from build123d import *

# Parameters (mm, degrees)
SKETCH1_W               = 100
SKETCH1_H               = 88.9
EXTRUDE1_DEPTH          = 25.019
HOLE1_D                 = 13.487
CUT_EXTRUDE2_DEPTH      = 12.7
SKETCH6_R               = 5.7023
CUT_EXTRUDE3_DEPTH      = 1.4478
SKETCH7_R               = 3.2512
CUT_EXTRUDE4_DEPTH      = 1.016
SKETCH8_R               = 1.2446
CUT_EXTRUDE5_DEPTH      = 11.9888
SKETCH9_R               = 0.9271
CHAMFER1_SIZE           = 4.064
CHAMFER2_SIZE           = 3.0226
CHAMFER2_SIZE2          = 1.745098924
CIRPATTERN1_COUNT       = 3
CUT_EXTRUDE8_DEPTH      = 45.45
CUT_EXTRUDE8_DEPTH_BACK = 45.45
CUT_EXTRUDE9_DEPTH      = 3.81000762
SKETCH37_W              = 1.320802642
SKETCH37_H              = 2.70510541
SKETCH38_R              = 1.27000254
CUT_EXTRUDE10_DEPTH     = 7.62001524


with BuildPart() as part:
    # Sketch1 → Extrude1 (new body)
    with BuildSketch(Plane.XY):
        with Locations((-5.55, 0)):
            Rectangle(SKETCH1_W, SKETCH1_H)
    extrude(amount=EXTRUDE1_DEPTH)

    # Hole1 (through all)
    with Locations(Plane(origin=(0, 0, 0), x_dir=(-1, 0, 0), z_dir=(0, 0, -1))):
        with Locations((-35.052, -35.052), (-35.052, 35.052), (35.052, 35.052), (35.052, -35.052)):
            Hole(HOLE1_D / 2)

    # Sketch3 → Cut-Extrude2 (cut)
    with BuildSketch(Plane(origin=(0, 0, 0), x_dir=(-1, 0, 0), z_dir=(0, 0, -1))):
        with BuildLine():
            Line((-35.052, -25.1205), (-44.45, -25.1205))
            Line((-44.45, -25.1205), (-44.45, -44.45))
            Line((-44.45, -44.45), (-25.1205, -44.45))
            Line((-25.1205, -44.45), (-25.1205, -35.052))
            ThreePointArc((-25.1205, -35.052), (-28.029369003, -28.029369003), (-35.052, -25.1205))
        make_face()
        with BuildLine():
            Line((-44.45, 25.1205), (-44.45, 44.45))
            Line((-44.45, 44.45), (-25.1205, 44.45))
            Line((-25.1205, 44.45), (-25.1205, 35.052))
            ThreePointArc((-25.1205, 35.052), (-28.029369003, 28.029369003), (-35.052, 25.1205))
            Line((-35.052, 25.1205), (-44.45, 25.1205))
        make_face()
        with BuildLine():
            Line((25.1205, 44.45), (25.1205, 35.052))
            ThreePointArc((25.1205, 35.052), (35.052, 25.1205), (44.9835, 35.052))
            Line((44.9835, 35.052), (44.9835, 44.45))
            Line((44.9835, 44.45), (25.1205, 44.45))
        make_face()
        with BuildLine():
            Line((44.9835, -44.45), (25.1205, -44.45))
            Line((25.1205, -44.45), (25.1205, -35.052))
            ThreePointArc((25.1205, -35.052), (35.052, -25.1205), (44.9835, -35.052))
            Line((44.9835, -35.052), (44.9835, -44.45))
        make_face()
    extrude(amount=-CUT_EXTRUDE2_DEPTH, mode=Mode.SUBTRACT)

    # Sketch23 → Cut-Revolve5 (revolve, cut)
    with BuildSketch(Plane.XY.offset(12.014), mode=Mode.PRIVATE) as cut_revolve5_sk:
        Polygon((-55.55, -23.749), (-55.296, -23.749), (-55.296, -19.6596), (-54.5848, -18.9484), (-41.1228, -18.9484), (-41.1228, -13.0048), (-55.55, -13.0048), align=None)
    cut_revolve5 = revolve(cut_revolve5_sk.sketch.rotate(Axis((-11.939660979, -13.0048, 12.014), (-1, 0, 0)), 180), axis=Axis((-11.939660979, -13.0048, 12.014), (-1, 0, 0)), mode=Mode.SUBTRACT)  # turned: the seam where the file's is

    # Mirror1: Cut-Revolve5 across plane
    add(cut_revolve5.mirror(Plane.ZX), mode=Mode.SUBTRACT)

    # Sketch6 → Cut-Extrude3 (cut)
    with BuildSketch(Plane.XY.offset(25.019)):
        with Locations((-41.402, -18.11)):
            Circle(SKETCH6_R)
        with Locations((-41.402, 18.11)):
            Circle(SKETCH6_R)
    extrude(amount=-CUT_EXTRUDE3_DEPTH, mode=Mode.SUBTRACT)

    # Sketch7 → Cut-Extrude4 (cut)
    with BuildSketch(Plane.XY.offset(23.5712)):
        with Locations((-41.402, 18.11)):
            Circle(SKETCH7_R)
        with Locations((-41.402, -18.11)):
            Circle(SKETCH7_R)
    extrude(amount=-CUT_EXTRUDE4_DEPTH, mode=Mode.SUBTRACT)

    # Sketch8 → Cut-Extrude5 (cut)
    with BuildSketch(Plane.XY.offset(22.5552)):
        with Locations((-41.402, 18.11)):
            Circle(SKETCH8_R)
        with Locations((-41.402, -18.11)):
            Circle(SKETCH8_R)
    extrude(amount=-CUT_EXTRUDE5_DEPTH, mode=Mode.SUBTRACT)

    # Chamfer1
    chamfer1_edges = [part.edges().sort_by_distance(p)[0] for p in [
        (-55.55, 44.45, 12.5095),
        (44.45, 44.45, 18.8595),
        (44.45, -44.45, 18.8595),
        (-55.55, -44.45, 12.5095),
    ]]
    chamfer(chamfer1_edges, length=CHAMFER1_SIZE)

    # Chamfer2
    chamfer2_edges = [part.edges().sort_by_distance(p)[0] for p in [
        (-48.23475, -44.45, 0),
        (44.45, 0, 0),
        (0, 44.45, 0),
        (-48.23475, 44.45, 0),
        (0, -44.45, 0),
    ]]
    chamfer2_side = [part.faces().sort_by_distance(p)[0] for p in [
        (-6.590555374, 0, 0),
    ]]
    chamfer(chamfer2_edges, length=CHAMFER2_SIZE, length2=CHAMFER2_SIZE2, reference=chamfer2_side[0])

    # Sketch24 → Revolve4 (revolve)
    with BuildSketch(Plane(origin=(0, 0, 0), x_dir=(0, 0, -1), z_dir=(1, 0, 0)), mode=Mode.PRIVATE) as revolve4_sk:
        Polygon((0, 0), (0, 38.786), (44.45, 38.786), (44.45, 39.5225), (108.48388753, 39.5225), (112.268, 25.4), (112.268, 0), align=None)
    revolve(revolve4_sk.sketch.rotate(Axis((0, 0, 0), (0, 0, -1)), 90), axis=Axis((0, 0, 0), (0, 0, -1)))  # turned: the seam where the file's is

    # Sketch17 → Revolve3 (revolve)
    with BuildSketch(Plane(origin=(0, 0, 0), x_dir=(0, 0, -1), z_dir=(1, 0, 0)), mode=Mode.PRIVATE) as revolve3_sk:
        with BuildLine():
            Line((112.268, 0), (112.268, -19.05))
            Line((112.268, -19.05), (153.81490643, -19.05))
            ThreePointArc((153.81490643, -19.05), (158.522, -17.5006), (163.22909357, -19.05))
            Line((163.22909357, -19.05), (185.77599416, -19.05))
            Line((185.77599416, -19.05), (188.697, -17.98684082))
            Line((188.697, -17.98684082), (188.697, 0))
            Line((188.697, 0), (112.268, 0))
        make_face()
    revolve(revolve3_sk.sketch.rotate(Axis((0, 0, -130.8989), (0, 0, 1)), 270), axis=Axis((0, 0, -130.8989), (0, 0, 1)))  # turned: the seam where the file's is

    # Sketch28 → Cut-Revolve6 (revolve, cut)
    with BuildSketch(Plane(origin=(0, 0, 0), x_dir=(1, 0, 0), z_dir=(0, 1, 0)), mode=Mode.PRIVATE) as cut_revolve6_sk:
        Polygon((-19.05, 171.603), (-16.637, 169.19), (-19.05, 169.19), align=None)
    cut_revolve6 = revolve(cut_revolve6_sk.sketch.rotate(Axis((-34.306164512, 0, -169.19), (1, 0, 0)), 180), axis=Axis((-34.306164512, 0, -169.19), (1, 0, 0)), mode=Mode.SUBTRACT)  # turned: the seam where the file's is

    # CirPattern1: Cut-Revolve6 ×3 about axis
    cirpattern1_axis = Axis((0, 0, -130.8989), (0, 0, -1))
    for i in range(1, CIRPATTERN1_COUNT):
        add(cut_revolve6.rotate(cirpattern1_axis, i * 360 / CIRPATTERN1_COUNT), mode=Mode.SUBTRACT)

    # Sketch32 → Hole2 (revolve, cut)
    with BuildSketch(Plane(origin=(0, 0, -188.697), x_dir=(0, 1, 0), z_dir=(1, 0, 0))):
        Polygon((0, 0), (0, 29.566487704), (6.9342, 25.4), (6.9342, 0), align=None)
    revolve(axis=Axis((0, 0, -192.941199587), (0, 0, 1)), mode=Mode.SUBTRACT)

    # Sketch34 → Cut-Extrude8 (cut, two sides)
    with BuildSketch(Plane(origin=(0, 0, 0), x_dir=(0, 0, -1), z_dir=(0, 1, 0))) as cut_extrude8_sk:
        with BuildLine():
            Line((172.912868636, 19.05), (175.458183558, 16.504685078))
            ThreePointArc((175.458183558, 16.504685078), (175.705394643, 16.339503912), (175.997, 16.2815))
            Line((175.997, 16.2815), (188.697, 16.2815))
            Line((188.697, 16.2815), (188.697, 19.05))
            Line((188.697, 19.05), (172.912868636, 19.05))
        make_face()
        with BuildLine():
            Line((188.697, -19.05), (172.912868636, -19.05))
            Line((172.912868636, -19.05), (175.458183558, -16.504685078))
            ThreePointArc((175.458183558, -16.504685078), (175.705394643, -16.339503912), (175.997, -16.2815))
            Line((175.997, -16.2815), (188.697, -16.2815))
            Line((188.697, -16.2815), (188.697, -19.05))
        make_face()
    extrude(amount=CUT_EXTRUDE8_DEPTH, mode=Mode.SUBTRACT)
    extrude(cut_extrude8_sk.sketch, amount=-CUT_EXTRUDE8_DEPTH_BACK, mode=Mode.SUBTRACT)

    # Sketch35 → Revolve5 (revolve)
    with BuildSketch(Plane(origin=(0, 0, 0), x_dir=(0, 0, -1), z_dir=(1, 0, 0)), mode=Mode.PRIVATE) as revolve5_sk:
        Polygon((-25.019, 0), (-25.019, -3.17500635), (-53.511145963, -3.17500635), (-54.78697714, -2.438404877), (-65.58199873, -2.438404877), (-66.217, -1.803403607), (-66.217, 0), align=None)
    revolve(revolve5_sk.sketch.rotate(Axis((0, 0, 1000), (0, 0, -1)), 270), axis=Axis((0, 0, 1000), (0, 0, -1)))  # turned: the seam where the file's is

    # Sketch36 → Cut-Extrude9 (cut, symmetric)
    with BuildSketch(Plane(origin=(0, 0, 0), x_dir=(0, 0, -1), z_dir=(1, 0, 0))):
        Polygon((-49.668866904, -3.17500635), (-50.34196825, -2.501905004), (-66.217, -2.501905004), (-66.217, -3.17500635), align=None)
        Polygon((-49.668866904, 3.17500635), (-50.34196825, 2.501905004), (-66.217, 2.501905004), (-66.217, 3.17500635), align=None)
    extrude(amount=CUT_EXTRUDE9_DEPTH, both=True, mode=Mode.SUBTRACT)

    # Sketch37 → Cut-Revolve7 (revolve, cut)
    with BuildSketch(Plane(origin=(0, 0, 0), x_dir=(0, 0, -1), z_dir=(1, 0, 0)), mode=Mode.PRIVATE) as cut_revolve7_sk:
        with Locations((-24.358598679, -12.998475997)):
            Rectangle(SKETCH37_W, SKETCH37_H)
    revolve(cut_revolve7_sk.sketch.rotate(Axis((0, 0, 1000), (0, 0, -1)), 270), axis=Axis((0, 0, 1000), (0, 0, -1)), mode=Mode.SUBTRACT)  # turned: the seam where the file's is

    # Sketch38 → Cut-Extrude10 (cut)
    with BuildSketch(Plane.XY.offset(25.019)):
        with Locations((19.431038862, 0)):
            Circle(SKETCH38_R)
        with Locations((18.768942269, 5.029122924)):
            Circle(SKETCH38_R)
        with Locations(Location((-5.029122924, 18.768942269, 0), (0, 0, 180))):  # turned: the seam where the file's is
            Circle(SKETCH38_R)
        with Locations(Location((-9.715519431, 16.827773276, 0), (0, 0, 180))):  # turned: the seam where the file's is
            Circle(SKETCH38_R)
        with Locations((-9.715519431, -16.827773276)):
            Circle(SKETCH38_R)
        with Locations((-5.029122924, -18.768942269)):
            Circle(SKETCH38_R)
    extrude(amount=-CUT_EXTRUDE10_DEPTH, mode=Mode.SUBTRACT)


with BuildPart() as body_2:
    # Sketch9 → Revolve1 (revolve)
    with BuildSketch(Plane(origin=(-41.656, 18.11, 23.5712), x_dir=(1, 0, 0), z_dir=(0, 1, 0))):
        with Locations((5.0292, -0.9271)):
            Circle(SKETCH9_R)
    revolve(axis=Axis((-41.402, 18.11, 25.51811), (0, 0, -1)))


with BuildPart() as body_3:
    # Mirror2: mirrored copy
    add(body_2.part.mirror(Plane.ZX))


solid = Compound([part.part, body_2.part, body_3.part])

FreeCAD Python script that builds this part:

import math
import FreeCAD as App
import Part
import Sketcher

V = App.Vector
Q = App.Units.Quantity


def edges_at(feature, points):
    """Names of the edges that pass closest to the given points."""
    edges = feature.Shape.Edges
    near = lambda p: min(range(len(edges)), key=lambda i: edges[i].distToShape(Part.Vertex(*p))[0])
    return sorted({f"Edge{near(p) + 1}" for p in points})

doc = App.newDocument("Part")
params = doc.addObject("Spreadsheet::Sheet", "Params")
for row, (alias, value) in enumerate([
    ("sketch1_height", "3.5 in"),
    ("pad1_length", "0.985 in"),
    ("hole_diameter", "13.487 mm"),
    ("sketch3_width", "0.37 in"),
    ("pocket1_length", "0.5 in"),
    ("sketch4_width", "0.01 in"),
    ("sketch4_width2", "0.53 in"),
    ("sketch4_width3", "0.568 in"),
    ("sketch4_height", "0.161 in"),
    ("sketch4_height2", "0.234 in"),
    ("groove_angle", "360 deg"),
    ("sketch5_diameter", "0.449 in"),
    ("pocket2_length", "0.057 in"),
    ("sketch6_diameter", "0.256 in"),
    ("pocket3_length", "0.04 in"),
    ("sketch7_diameter", "0.098 in"),
    ("pocket4_length", "0.472 in"),
    ("chamfer_size", "0.16 in"),
    ("chamfer2_size", "0.119 in"),
    ("chamfer2_size2", "1.745099 mm"),
    ("sketch8_width", "1 in"),
    ("sketch8_height", "4.42 in"),
    ("sketch8_height2", "1.75 in"),
    ("revolution_angle", "360 deg"),
    ("sketch9_radius", "0.312 in"),
    ("sketch9_width", "0.75 in"),
    ("revolution2_angle", "360 deg"),
    ("sketch10_width", "0.095 in"),
    ("groove2_angle", "360 deg"),
    ("sketch11_height", "1 in"),
    ("sketch11_width", "0.273 in"),
    ("groove3_angle", "360 deg"),
    ("sketch12_radius", "0.0300001 in"),
    ("sketch12_height", "0.5 in"),
    ("sketch13_width", "0.0710001 in"),
    ("sketch13_length", "0.0580001 in"),
    ("revolution3_angle", "360 deg"),
    ("pocket6_length", "7.620015 mm"),
    ("sketch15_height", "0.0520001 in"),
    ("groove4_angle", "360 deg"),
    ("sketch16_diameter", "0.1000002 in"),
    ("pocket7_length", "7.620015 mm"),
    ("sketch17_diameter", "0.073 in"),
    ("revolution4_angle", "360 deg"),
], start=1):
    params.set(f"A{row}", alias)
    params.set(f"B{row}", "=" + value)
    params.setAlias(f"B{row}", alias)

body = doc.addObject("PartDesign::Body", "Body")

sketch1 = doc.addObject("Sketcher::SketchObject", "Sketch")
body.addObject(sketch1)
sketch1.AttachmentSupport = (doc.XY_Plane, [""])
sketch1.MapMode = "FlatFace"
sketch1.addGeometry([
    Part.LineSegment(V(-55.55, 44.45, 0), V(-55.55, -44.45, 0)),
    Part.LineSegment(V(-55.55, -44.45, 0), V(44.45, -44.45, 0)),
    Part.LineSegment(V(44.45, -44.45, 0), V(44.45, 44.45, 0)),
    Part.LineSegment(V(44.45, 44.45, 0), V(-55.55, 44.45, 0)),
], False)
sketch1.addConstraint([
    Sketcher.Constraint("Coincident", 0, 2, 1, 1),
    Sketcher.Constraint("Coincident", 1, 2, 2, 1),
    Sketcher.Constraint("Coincident", 2, 2, 3, 1),
    Sketcher.Constraint("Coincident", 3, 2, 0, 1),
    Sketcher.Constraint("Vertical", 0),
    Sketcher.Constraint("Horizontal", 1),
    Sketcher.Constraint("Vertical", 2),
    Sketcher.Constraint("Horizontal", 3),
    Sketcher.Constraint("DistanceY", 0, 2, 0, 1, Q("3.5 in")),
    Sketcher.Constraint("DistanceY", 0, 2, -1, 1, Q("1.75 in")),
    Sketcher.Constraint("DistanceX", -1, 1, 1, 2, Q("1.75 in")),
    Sketcher.Constraint("DistanceX", 1, 1, 1, 2, Q("100 mm")),
])
sketch1.setExpression("Constraints[8]", "Params.sketch1_height")
pad1 = doc.addObject("PartDesign::Pad", "Pad")
body.addObject(pad1)
pad1.Profile = sketch1
pad1.setExpression("Length", "Params.pad1_length")

sketch2 = doc.addObject("Sketcher::SketchObject", "Sketch001")
body.addObject(sketch2)
sketch2.AttachmentSupport = (doc.XY_Plane, [""])
sketch2.MapMode = "FlatFace"
sketch2.addGeometry([
    Part.Circle(V(35.052, -35.052, 0), V(0, 0, 1), 6.7435),
    Part.Circle(V(35.052, 35.052, 0), V(0, 0, 1), 6.7435),
    Part.Circle(V(-35.052, 35.052, 0), V(0, 0, 1), 6.7435),
    Part.Circle(V(-35.052, -35.052, 0), V(0, 0, 1), 6.7435),
], False)
sketch2.addConstraint([
    Sketcher.Constraint("Equal", 0, 1),
    Sketcher.Constraint("Equal", 1, 2),
    Sketcher.Constraint("Equal", 2, 3),
    Sketcher.Constraint("Symmetric", 0, 3, 2, 3, -1, 1),
    Sketcher.Constraint("Symmetric", 1, 3, 3, 3, -1, 1),
    Sketcher.Constraint("Symmetric", 1, 3, 2, 3, -2),
    Sketcher.Constraint("Diameter", 0, Q("13.487 mm")),
    Sketcher.Constraint("DistanceX", -1, 1, 0, 3, Q("1.38 in")),
    Sketcher.Constraint("DistanceY", 0, 3, -1, 1, Q("1.38 in")),
])
doc.recompute()
hole = doc.addObject("PartDesign::Hole", "Hole")
body.addObject(hole)
hole.Profile = sketch2
hole.ThreadType = "None"
hole.setExpression("Diameter", "Params.hole_diameter")
hole.DepthType = "ThroughAll"
hole.Reversed = True

sketch3 = doc.addObject("Sketcher::SketchObject", "Sketch002")
body.addObject(sketch3)
sketch3.AttachmentSupport = (doc.XY_Plane, [""])
sketch3.MapMode = "FlatFace"
sketch3.addGeometry([
    Part.LineSegment(V(35.052, -25.1205, 0), V(44.45, -25.1205, 0)),
    Part.LineSegment(V(44.45, -25.1205, 0), V(44.45, -44.45, 0)),
    Part.LineSegment(V(44.45, -44.45, 0), V(25.1205, -44.45, 0)),
    Part.LineSegment(V(25.1205, -44.45, 0), V(25.1205, -35.052, 0)),
    Part.ArcOfCircle(Part.Circle(V(35.052, -35.052, 0), V(0, 0, 1), 9.9315), math.radians(90), math.radians(180)),
    Part.LineSegment(V(44.45, 44.45, 0), V(44.45, 25.1205, 0)),
    Part.LineSegment(V(44.45, 25.1205, 0), V(35.052, 25.1205, 0)),
    Part.ArcOfCircle(Part.Circle(V(35.052, 35.052, 0), V(0, 0, 1), 9.9315), math.radians(-180), math.radians(-90)),
    Part.LineSegment(V(25.1205, 35.052, 0), V(25.1205, 44.45, 0)),
    Part.LineSegment(V(25.1205, 44.45, 0), V(44.45, 44.45, 0)),
    Part.LineSegment(V(-25.1205, 44.45, 0), V(-25.1205, 35.052, 0)),
    Part.ArcOfCircle(Part.Circle(V(-35.052, 35.052, 0), V(0, 0, 1), 9.9315), math.radians(180), math.radians(360)),
    Part.LineSegment(V(-44.9835, 35.052, 0), V(-44.9835, 44.45, 0)),
    Part.LineSegment(V(-44.9835, 44.45, 0), V(-25.1205, 44.45, 0)),
    Part.LineSegment(V(-25.1205, -44.45, 0), V(-44.9835, -44.45, 0)),
    Part.LineSegment(V(-44.9835, -44.45, 0), V(-44.9835, -35.052, 0)),
    Part.ArcOfCircle(Part.Circle(V(-35.052, -35.052, 0), V(0, 0, 1), 9.9315), math.radians(0), math.radians(180)),
    Part.LineSegment(V(-25.1205, -35.052, 0), V(-25.1205, -44.45, 0)),
], False)
sketch3.addConstraint([
    Sketcher.Constraint("Coincident", 0, 2, 1, 1),
    Sketcher.Constraint("Coincident", 1, 2, 2, 1),
    Sketcher.Constraint("Coincident", 2, 2, 3, 1),
    Sketcher.Constraint("Tangent", 3, 2, 4, 2),
    Sketcher.Constraint("Tangent", 4, 1, 0, 1),
    Sketcher.Constraint("Coincident", 5, 2, 6, 1),
    Sketcher.Constraint("Tangent", 6, 2, 7, 2),
    Sketcher.Constraint("Tangent", 7, 1, 8, 1),
    Sketcher.Constraint("Coincident", 8, 2, 9, 1),
    Sketcher.Constraint("Coincident", 9, 2, 5, 1),
    Sketcher.Constraint("Tangent", 10, 2, 11, 2),
    Sketcher.Constraint("Tangent", 11, 1, 12, 1),
    Sketcher.Constraint("Coincident", 12, 2, 13, 1),
    Sketcher.Constraint("Coincident", 13, 2, 10, 1),
    Sketcher.Constraint("Coincident", 14, 2, 15, 1),
    Sketcher.Constraint("Tangent", 15, 2, 16, 2),
    Sketcher.Constraint("Tangent", 16, 1, 17, 1),
    Sketcher.Constraint("Coincident", 17, 2, 14, 1),
    Sketcher.Constraint("Horizontal", 0),
    Sketcher.Constraint("Vertical", 1),
    Sketcher.Constraint("Horizontal", 2),
    Sketcher.Constraint("Vertical", 3),
    Sketcher.Constraint("Vertical", 5),
    Sketcher.Constraint("Horizontal", 6),
    Sketcher.Constraint("Vertical", 8),
    Sketcher.Constraint("Horizontal", 9),
    Sketcher.Constraint("Vertical", 10),
    Sketcher.Constraint("Vertical", 12),
    Sketcher.Constraint("Horizontal", 13),
    Sketcher.Constraint("Horizontal", 14),
    Sketcher.Constraint("Vertical", 15),
    Sketcher.Constraint("Vertical", 17),
    Sketcher.Constraint("Equal", 4, 7),
    Sketcher.Constraint("Equal", 7, 11),
    Sketcher.Constraint("Equal", 11, 16),
    Sketcher.Constraint("Symmetric", 4, 3, 11, 3, -1, 1),
    Sketcher.Constraint("Symmetric", 7, 3, 16, 3, -1, 1),
    Sketcher.Constraint("Symmetric", 7, 3, 11, 3, -2),
    Sketcher.Constraint("Symmetric", 1, 2, 9, 2, -1),
    Sketcher.Constraint("Horizontal", 9, 2, 12, 2),
    Sketcher.Constraint("Horizontal", 2, 2, 14, 2),
    Sketcher.Constraint("Equal", 9, 1),
    Sketcher.Constraint("DistanceX", 0, 1, 0, 2, Q("0.37 in")),
    Sketcher.Constraint("DistanceX", -1, 1, 4, 3, Q("1.38 in")),
    Sketcher.Constraint("DistanceY", 4, 3, -1, 1, Q("1.38 in")),
    Sketcher.Constraint("Radius", 4, Q("9.9315 mm")),
])
sketch3.setExpression("Constraints[42]", "Params.sketch3_width")
pocket1 = doc.addObject("PartDesign::Pocket", "Pocket")
body.addObject(pocket1)
pocket1.Profile = sketch3
pocket1.setExpression("Length", "Params.pocket1_length")
pocket1.Reversed = True

sketch4 = doc.addObject("Sketcher::SketchObject", "Sketch003")
body.addObject(sketch4)
sketch4.AttachmentSupport = (doc.XY_Plane, [""])
sketch4.MapMode = "FlatFace"
sketch4.AttachmentOffset = App.Placement(V(0, 0, 12.014), App.Rotation())
sketch4.addGeometry([
    Part.LineSegment(V(-55.55, -23.749, 0), V(-55.296, -23.749, 0)),
    Part.LineSegment(V(-55.296, -23.749, 0), V(-55.296, -19.6596, 0)),
    Part.LineSegment(V(-55.296, -19.6596, 0), V(-54.5848, -18.9484, 0)),
    Part.LineSegment(V(-54.5848, -18.9484, 0), V(-41.1228, -18.9484, 0)),
    Part.LineSegment(V(-41.1228, -18.9484, 0), V(-41.1228, -13.0048, 0)),
    Part.LineSegment(V(-41.1228, -13.0048, 0), V(-55.55, -13.0048, 0)),
    Part.LineSegment(V(-55.55, -13.0048, 0), V(-55.55, -23.749, 0)),
], False)
sketch4.addGeometry(Part.LineSegment(V(-41.1228, -13.0048, 0), V(-55.55, -13.0048, 0)), True)
sketch4.addConstraint([
    Sketcher.Constraint("Coincident", 0, 2, 1, 1),
    Sketcher.Constraint("Coincident", 1, 2, 2, 1),
    Sketcher.Constraint("Coincident", 2, 2, 3, 1),
    Sketcher.Constraint("Coincident", 3, 2, 4, 1),
    Sketcher.Constraint("Coincident", 4, 2, 5, 1),
    Sketcher.Constraint("Coincident", 5, 2, 6, 1),
    Sketcher.Constraint("Coincident", 6, 2, 0, 1),
    Sketcher.Constraint("Horizontal", 0),
    Sketcher.Constraint("Vertical", 1),
    Sketcher.Constraint("Horizontal", 3),
    Sketcher.Constraint("Vertical", 4),
    Sketcher.Constraint("Horizontal", 5),
    Sketcher.Constraint("Vertical", 6),
    Sketcher.Constraint("Horizontal", 7),
    Sketcher.Constraint("Coincident", 7, 1, 4, 2),
    Sketcher.Constraint("Vertical", 6, 2, 7, 2),
    Sketcher.Constraint("Angle", 2, Q("45 deg")),
    Sketcher.Constraint("DistanceX", 0, 1, 0, 2, Q("0.01 in")),
    Sketcher.Constraint("DistanceX", 3, 1, 3, 2, Q("0.53 in")),
    Sketcher.Constraint("DistanceX", 5, 2, 5, 1, Q("0.568 in")),
    Sketcher.Constraint("DistanceY", 1, 1, 1, 2, Q("0.161 in")),
    Sketcher.Constraint("DistanceY", 4, 1, 4, 2, Q("0.234 in")),
    Sketcher.Constraint("DistanceY", 0, 2, -1, 1, Q("0.935 in")),
    Sketcher.Constraint("DistanceX", 0, 2, -1, 1, Q("55.296 mm")),
])
sketch4.setExpression("Constraints[17]", "Params.sketch4_width")
sketch4.setExpression("Constraints[18]", "Params.sketch4_width2")
sketch4.setExpression("Constraints[19]", "Params.sketch4_width3")
sketch4.setExpression("Constraints[20]", "Params.sketch4_height")
sketch4.setExpression("Constraints[21]", "Params.sketch4_height2")
groove = doc.addObject("PartDesign::Groove", "Groove")
body.addObject(groove)
groove.Profile = sketch4
groove.ReferenceAxis = (sketch4, ["Axis0"])
groove.setExpression("Angle", "Params.groove_angle")
doc.recompute()

mirrored = doc.addObject("PartDesign::Mirrored", "Mirrored")
body.addObject(mirrored)
mirrored.Originals = [groove]
mirrored.MirrorPlane = (doc.XZ_Plane, [""])
body.Tip = mirrored

sketch5 = doc.addObject("Sketcher::SketchObject", "Sketch004")
body.addObject(sketch5)
sketch5.AttachmentSupport = (doc.XY_Plane, [""])
sketch5.MapMode = "FlatFace"
sketch5.AttachmentOffset = App.Placement(V(0, 0, 0.985 * 25.4), App.Rotation())
sketch5.addGeometry([
    Part.Circle(V(-41.402, -18.11, 0), V(0, 0, 1), 5.7023),
    Part.Circle(V(-41.402, 18.11, 0), V(0, 0, 1), 5.7023),
], False)
sketch5.addConstraint([
    Sketcher.Constraint("Equal", 0, 1),
    Sketcher.Constraint("Symmetric", 0, 3, 1, 3, -1),
    Sketcher.Constraint("Diameter", 0, Q("0.449 in")),
    Sketcher.Constraint("DistanceX", 0, 3, -1, 1, Q("1.63 in")),
    Sketcher.Constraint("DistanceY", 0, 3, -1, 1, Q("18.11 mm")),
])
sketch5.setExpression("Constraints[2]", "Params.sketch5_diameter")
pocket2 = doc.addObject("PartDesign::Pocket", "Pocket001")
body.addObject(pocket2)
pocket2.Profile = sketch5
pocket2.setExpression("Length", "Params.pocket2_length")

sketch6 = doc.addObject("Sketcher::SketchObject", "Sketch005")
body.addObject(sketch6)
sketch6.AttachmentSupport = (doc.XY_Plane, [""])
sketch6.MapMode = "FlatFace"
sketch6.AttachmentOffset = App.Placement(V(0, 0, 0.928 * 25.4), App.Rotation())
sketch6.addGeometry([
    Part.Circle(V(-41.402, 18.11, 0), V(0, 0, 1), 3.2512),
    Part.Circle(V(-41.402, -18.11, 0), V(0, 0, 1), 3.2512),
], False)
sketch6.addConstraint([
    Sketcher.Constraint("Equal", 0, 1),
    Sketcher.Constraint("Symmetric", 0, 3, 1, 3, -1),
    Sketcher.Constraint("Diameter", 0, Q("0.256 in")),
    Sketcher.Constraint("DistanceX", 0, 3, -1, 1, Q("1.63 in")),
    Sketcher.Constraint("DistanceY", -1, 1, 0, 3, Q("18.11 mm")),
])
sketch6.setExpression("Constraints[2]", "Params.sketch6_diameter")
pocket3 = doc.addObject("PartDesign::Pocket", "Pocket002")
body.addObject(pocket3)
pocket3.Profile = sketch6
pocket3.setExpression("Length", "Params.pocket3_length")

sketch7 = doc.addObject("Sketcher::SketchObject", "Sketch006")
body.addObject(sketch7)
sketch7.AttachmentSupport = (doc.XY_Plane, [""])
sketch7.MapMode = "FlatFace"
sketch7.AttachmentOffset = App.Placement(V(0, 0, 0.888 * 25.4), App.Rotation())
sketch7.addGeometry([
    Part.Circle(V(-41.402, 18.11, 0), V(0, 0, 1), 1.2446),
    Part.Circle(V(-41.402, -18.11, 0), V(0, 0, 1), 1.2446),
], False)
sketch7.addConstraint([
    Sketcher.Constraint("Equal", 0, 1),
    Sketcher.Constraint("Symmetric", 0, 3, 1, 3, -1),
    Sketcher.Constraint("Diameter", 0, Q("0.098 in")),
    Sketcher.Constraint("DistanceX", 0, 3, -1, 1, Q("1.63 in")),
    Sketcher.Constraint("DistanceY", -1, 1, 0, 3, Q("18.11 mm")),
])
sketch7.setExpression("Constraints[2]", "Params.sketch7_diameter")
pocket4 = doc.addObject("PartDesign::Pocket", "Pocket003")
body.addObject(pocket4)
pocket4.Profile = sketch7
pocket4.setExpression("Length", "Params.pocket4_length")
doc.recompute()

chamfer = doc.addObject("PartDesign::Chamfer", "Chamfer")
body.addObject(chamfer)
chamfer.Base = (pocket4, edges_at(pocket4, [
    (-55.55, 44.45, 12.509),
    (44.45, 44.45, 18.86),
    (44.45, -44.45, 18.86),
    (-55.55, -44.45, 12.509),
]))
chamfer.setExpression("Size", "Params.chamfer_size")
doc.recompute()

chamfer2 = doc.addObject("PartDesign::Chamfer", "Chamfer001")
body.addObject(chamfer2)
chamfer2.Base = (chamfer, edges_at(chamfer, [
    (-48.235, -44.45, 0),
    (44.45, 0, 0),
    (0, 44.45, 0),
    (-48.235, 44.45, 0),
    (0, -44.45, 0),
]))
chamfer2.ChamferType = "Two distances"
chamfer2.setExpression("Size", "Params.chamfer2_size")
chamfer2.setExpression("Size2", "Params.chamfer2_size2")

sketch8 = doc.addObject("Sketcher::SketchObject", "Sketch007")
body.addObject(sketch8)
sketch8.AttachmentSupport = (doc.YZ_Plane, [""])
sketch8.MapMode = "FlatFace"
sketch8.addGeometry([
    Part.LineSegment(V(38.786, 0, 0), V(0, 0, 0)),
    Part.LineSegment(V(0, 0, 0), V(0, -112.268, 0)),
    Part.LineSegment(V(0, -112.268, 0), V(25.4, -112.268, 0)),
    Part.LineSegment(V(25.4, -112.268, 0), V(39.5225, -108.483888, 0)),
    Part.LineSegment(V(39.5225, -108.483888, 0), V(39.5225, -44.45, 0)),
    Part.LineSegment(V(39.5225, -44.45, 0), V(38.786, -44.45, 0)),
    Part.LineSegment(V(38.786, -44.45, 0), V(38.786, 0, 0)),
], False)
sketch8.addConstraint([
    Sketcher.Constraint("Coincident", 0, 2, 1, 1),
    Sketcher.Constraint("Coincident", 1, 2, 2, 1),
    Sketcher.Constraint("Coincident", 2, 2, 3, 1),
    Sketcher.Constraint("Coincident", 3, 2, 4, 1),
    Sketcher.Constraint("Coincident", 4, 2, 5, 1),
    Sketcher.Constraint("Coincident", 5, 2, 6, 1),
    Sketcher.Constraint("Coincident", 6, 2, 0, 1),
    Sketcher.Constraint("Horizontal", 0),
    Sketcher.Constraint("Vertical", 1),
    Sketcher.Constraint("Horizontal", 2),
    Sketcher.Constraint("Vertical", 4),
    Sketcher.Constraint("Horizontal", 5),
    Sketcher.Constraint("Vertical", 6),
    Sketcher.Constraint("Coincident", 0, 2, -1, 1),
    Sketcher.Constraint("DistanceX", 2, 1, 2, 2, Q("1 in")),
    Sketcher.Constraint("Angle", 3, Q("15 deg")),
    Sketcher.Constraint("DistanceY", 1, 2, 1, 1, Q("4.42 in")),
    Sketcher.Constraint("DistanceY", 6, 1, 6, 2, Q("1.75 in")),
    Sketcher.Constraint("DistanceX", 0, 2, 0, 1, Q("38.786 mm")),
    Sketcher.Constraint("DistanceX", 5, 2, 5, 1, Q("0.7365 mm")),
])
sketch8.setExpression("Constraints[14]", "Params.sketch8_width")
sketch8.setExpression("Constraints[16]", "Params.sketch8_height")
sketch8.setExpression("Constraints[17]", "Params.sketch8_height2")
revolution = doc.addObject("PartDesign::Revolution", "Revolution")
body.addObject(revolution)
revolution.Profile = sketch8
revolution.ReferenceAxis = (sketch8, ["V_Axis"])
revolution.setExpression("Angle", "Params.revolution_angle")

sketch9 = doc.addObject("Sketcher::SketchObject", "Sketch008")
body.addObject(sketch9)
sketch9.AttachmentSupport = (doc.YZ_Plane, [""])
sketch9.MapMode = "FlatFace"
sketch9.addGeometry([
    Part.LineSegment(V(0, -112.268, 0), V(-19.05, -112.268, 0)),
    Part.LineSegment(V(-19.05, -112.268, 0), V(-19.05, -153.814906, 0)),
    Part.ArcOfCircle(Part.Circle(V(-25.4254, -158.522, 0), V(0, 0, 1), 7.9248), math.radians(-36.439242), math.radians(36.439242)),
    Part.LineSegment(V(-19.05, -163.229094, 0), V(-19.05, -185.775994, 0)),
    Part.LineSegment(V(-19.05, -185.775994, 0), V(-17.986841, -188.697, 0)),
    Part.LineSegment(V(-17.986841, -188.697, 0), V(0, -188.697, 0)),
    Part.LineSegment(V(0, -188.697, 0), V(0, -112.268, 0)),
], False)
sketch9.addConstraint([
    Sketcher.Constraint("Coincident", 0, 2, 1, 1),
    Sketcher.Constraint("Coincident", 1, 2, 2, 2),
    Sketcher.Constraint("Coincident", 2, 1, 3, 1),
    Sketcher.Constraint("Coincident", 3, 2, 4, 1),
    Sketcher.Constraint("Coincident", 4, 2, 5, 1),
    Sketcher.Constraint("Coincident", 5, 2, 6, 1),
    Sketcher.Constraint("Coincident", 6, 2, 0, 1),
    Sketcher.Constraint("Horizontal", 0),
    Sketcher.Constraint("Vertical", 1),
    Sketcher.Constraint("Vertical", 3),
    Sketcher.Constraint("Horizontal", 5),
    Sketcher.Constraint("Vertical", 6),
    Sketcher.Constraint("PointOnObject", 5, 2, -2),
    Sketcher.Constraint("Vertical", 1, 2, 2, 1),
    Sketcher.Constraint("Angle", 4, Q("-70 deg")),
    Sketcher.Constraint("Radius", 2, Q("0.312 in")),
    Sketcher.Constraint("DistanceX", 0, 2, 0, 1, Q("0.75 in")),
    Sketcher.Constraint("DistanceY", 0, 2, -1, 1, Q("4.42 in")),
    Sketcher.Constraint("DistanceX", 2, 3, -1, 1, Q("1.001 in")),
    Sketcher.Constraint("DistanceY", 3, 2, 3, 1, Q("22.546901 mm")),
    Sketcher.Constraint("DistanceY", 6, 1, 6, 2, Q("76.429 mm")),
    Sketcher.Constraint("DistanceX", 5, 1, 5, 2, Q("17.986841 mm")),
])
sketch9.setExpression("Constraints[15]", "Params.sketch9_radius")
sketch9.setExpression("Constraints[16]", "Params.sketch9_width")
revolution2 = doc.addObject("PartDesign::Revolution", "Revolution001")
body.addObject(revolution2)
revolution2.Profile = sketch9
revolution2.ReferenceAxis = (sketch9, ["V_Axis"])
revolution2.setExpression("Angle", "Params.revolution2_angle")

sketch10 = doc.addObject("Sketcher::SketchObject", "Sketch009")
body.addObject(sketch10)
sketch10.AttachmentSupport = (doc.XZ_Plane, [""])
sketch10.MapMode = "FlatFace"
sketch10.addGeometry([
    Part.LineSegment(V(-16.637, -169.19, 0), V(-19.05, -171.603, 0)),
    Part.LineSegment(V(-19.05, -171.603, 0), V(-19.05, -169.19, 0)),
    Part.LineSegment(V(-19.05, -169.19, 0), V(-16.637, -169.19, 0)),
], False)
sketch10.addGeometry(Part.LineSegment(V(-19.05, -169.19, 0), V(-16.637, -169.19, 0)), True)
sketch10.addConstraint([
    Sketcher.Constraint("Coincident", 0, 2, 1, 1),
    Sketcher.Constraint("Coincident", 1, 2, 2, 1),
    Sketcher.Constraint("Coincident", 2, 2, 0, 1),
    Sketcher.Constraint("Vertical", 1),
    Sketcher.Constraint("Horizontal", 2),
    Sketcher.Constraint("Horizontal", 3),
    Sketcher.Constraint("Coincident", 3, 1, 1, 2),
    Sketcher.Constraint("Equal", 2, 3),
    Sketcher.Constraint("Equal", 3, 1),
    Sketcher.Constraint("DistanceX", 2, 1, 2, 2, Q("0.095 in")),
    Sketcher.Constraint("DistanceX", 0, 2, -1, 1, Q("0.75 in")),
    Sketcher.Constraint("DistanceY", 0, 2, -1, 1, Q("171.603 mm")),
])
sketch10.setExpression("Constraints[9]", "Params.sketch10_width")
groove2 = doc.addObject("PartDesign::Groove", "Groove001")
body.addObject(groove2)
groove2.Profile = sketch10
groove2.ReferenceAxis = (sketch10, ["Axis0"])
groove2.setExpression("Angle", "Params.groove2_angle")
doc.recompute()

polarpattern = doc.addObject("PartDesign::PolarPattern", "PolarPattern")
body.addObject(polarpattern)
polarpattern.Originals = [groove2]
polarpattern.Axis = (doc.Z_Axis, [""])
polarpattern.Angle = 360
polarpattern.Occurrences = 3
body.Tip = polarpattern

sketch11 = doc.addObject("Sketcher::SketchObject", "Sketch010")
body.addObject(sketch11)
sketch11.AttachmentSupport = (doc.YZ_Plane, [""])
sketch11.MapMode = "FlatFace"
sketch11.addGeometry([
    Part.LineSegment(V(0, -159.130512, 0), V(0, -188.697, 0)),
    Part.LineSegment(V(0, -188.697, 0), V(6.9342, -188.697, 0)),
    Part.LineSegment(V(6.9342, -188.697, 0), V(6.9342, -163.297, 0)),
    Part.LineSegment(V(6.9342, -163.297, 0), V(0, -159.130512, 0)),
], False)
sketch11.addConstraint([
    Sketcher.Constraint("Coincident", 0, 2, 1, 1),
    Sketcher.Constraint("Coincident", 1, 2, 2, 1),
    Sketcher.Constraint("Coincident", 2, 2, 3, 1),
    Sketcher.Constraint("Coincident", 3, 2, 0, 1),
    Sketcher.Constraint("Vertical", 0),
    Sketcher.Constraint("Horizontal", 1),
    Sketcher.Constraint("Vertical", 2),
    Sketcher.Constraint("PointOnObject", 0, 2, -2),
    Sketcher.Constraint("DistanceY", 2, 1, 2, 2, Q("1 in")),
    Sketcher.Constraint("Angle", 3, Q("149 deg")),
    Sketcher.Constraint("DistanceX", 1, 1, 1, 2, Q("0.273 in")),
    Sketcher.Constraint("DistanceY", 0, 2, -1, 1, Q("188.697 mm")),
])
sketch11.setExpression("Constraints[8]", "Params.sketch11_height")
sketch11.setExpression("Constraints[10]", "Params.sketch11_width")
groove3 = doc.addObject("PartDesign::Groove", "Groove002")
body.addObject(groove3)
groove3.Profile = sketch11
groove3.ReferenceAxis = (sketch11, ["V_Axis"])
groove3.setExpression("Angle", "Params.groove3_angle")

sketch12 = doc.addObject("Sketcher::SketchObject", "Sketch011")
body.addObject(sketch12)
sketch12.AttachmentSupport = (doc.XZ_Plane, [""])
sketch12.MapMode = "FlatFace"
sketch12.addGeometry([
    Part.LineSegment(V(-19.05, -172.912869, 0), V(-16.504685, -175.458184, 0)),
    Part.ArcOfCircle(Part.Circle(V(-17.043502, -175.997, 0), V(0, 0, 1), 0.762002), math.radians(0), math.radians(45)),
    Part.LineSegment(V(-16.2815, -175.997, 0), V(-16.2815, -188.697, 0)),
    Part.LineSegment(V(-16.2815, -188.697, 0), V(-19.05, -188.697, 0)),
    Part.LineSegment(V(-19.05, -188.697, 0), V(-19.05, -172.912869, 0)),
    Part.LineSegment(V(19.05, -172.912869, 0), V(19.05, -188.697, 0)),
    Part.LineSegment(V(19.05, -188.697, 0), V(16.2815, -188.697, 0)),
    Part.LineSegment(V(16.2815, -188.697, 0), V(16.2815, -175.997, 0)),
    Part.ArcOfCircle(Part.Circle(V(17.043502, -175.997, 0), V(0, 0, 1), 0.762002), math.radians(135), math.radians(180)),
    Part.LineSegment(V(16.504685, -175.458184, 0), V(19.05, -172.912869, 0)),
], False)
sketch12.addConstraint([
    Sketcher.Constraint("Tangent", 0, 2, 1, 2),
    Sketcher.Constraint("Tangent", 1, 1, 2, 1),
    Sketcher.Constraint("Coincident", 2, 2, 3, 1),
    Sketcher.Constraint("Coincident", 3, 2, 4, 1),
    Sketcher.Constraint("Coincident", 4, 2, 0, 1),
    Sketcher.Constraint("Coincident", 5, 2, 6, 1),
    Sketcher.Constraint("Coincident", 6, 2, 7, 1),
    Sketcher.Constraint("Tangent", 7, 2, 8, 2),
    Sketcher.Constraint("Tangent", 8, 1, 9, 1),
    Sketcher.Constraint("Coincident", 9, 2, 5, 1),
    Sketcher.Constraint("Vertical", 2),
    Sketcher.Constraint("Horizontal", 3),
    Sketcher.Constraint("Vertical", 4),
    Sketcher.Constraint("Vertical", 5),
    Sketcher.Constraint("Horizontal", 6),
    Sketcher.Constraint("Vertical", 7),
    Sketcher.Constraint("Equal", 1, 8),
    Sketcher.Constraint("Symmetric", 1, 3, 8, 3, -2),
    Sketcher.Constraint("Symmetric", 3, 2, 5, 2, -2),
    Sketcher.Constraint("Perpendicular", 0, 9),
    Sketcher.Constraint("Horizontal", 0, 2, 8, 1),
    Sketcher.Constraint("Radius", 1, Q("0.0300001 in")),
    Sketcher.Constraint("DistanceY", 2, 2, 2, 1, Q("0.5 in")),
    Sketcher.Constraint("DistanceX", 3, 2, 5, 2, Q("1.5 in")),
    Sketcher.Constraint("DistanceX", 3, 2, 3, 1, Q("2.7685 mm")),
    Sketcher.Constraint("DistanceY", 1, 3, -1, 1, Q("175.997 mm")),
])
sketch12.setExpression("Constraints[21]", "Params.sketch12_radius")
sketch12.setExpression("Constraints[22]", "Params.sketch12_height")
pocket5 = doc.addObject("PartDesign::Pocket", "Pocket004")
body.addObject(pocket5)
pocket5.Profile = sketch12
pocket5.Type = "ThroughAll"
pocket5.Midplane = True

sketch13 = doc.addObject("Sketcher::SketchObject", "Sketch012")
body.addObject(sketch13)
sketch13.AttachmentSupport = (doc.YZ_Plane, [""])
sketch13.MapMode = "FlatFace"
sketch13.addGeometry([
    Part.LineSegment(V(-3.175006, 25.019, 0), V(0, 25.019, 0)),
    Part.LineSegment(V(0, 25.019, 0), V(0, 66.217, 0)),
    Part.LineSegment(V(0, 66.217, 0), V(-1.803404, 66.217, 0)),
    Part.LineSegment(V(-1.803404, 66.217, 0), V(-2.438405, 65.581999, 0)),
    Part.LineSegment(V(-2.438405, 65.581999, 0), V(-2.438405, 54.786977, 0)),
    Part.LineSegment(V(-2.438405, 54.786977, 0), V(-3.175006, 53.511146, 0)),
    Part.LineSegment(V(-3.175006, 53.511146, 0), V(-3.175006, 25.019, 0)),
], False)
sketch13.addConstraint([
    Sketcher.Constraint("Coincident", 0, 2, 1, 1),
    Sketcher.Constraint("Coincident", 1, 2, 2, 1),
    Sketcher.Constraint("Coincident", 2, 2, 3, 1),
    Sketcher.Constraint("Coincident", 3, 2, 4, 1),
    Sketcher.Constraint("Coincident", 4, 2, 5, 1),
    Sketcher.Constraint("Coincident", 5, 2, 6, 1),
    Sketcher.Constraint("Coincident", 6, 2, 0, 1),
    Sketcher.Constraint("Horizontal", 0),
    Sketcher.Constraint("Vertical", 1),
    Sketcher.Constraint("Horizontal", 2),
    Sketcher.Constraint("Vertical", 4),
    Sketcher.Constraint("Vertical", 6),
    Sketcher.Constraint("PointOnObject", 0, 2, -2),
    Sketcher.Constraint("Angle", 3, Q("-135 deg")),
    Sketcher.Constraint("Angle", 5, Q("-120 deg")),
    Sketcher.Constraint("DistanceX", 2, 2, 2, 1, Q("0.0710001 in")),
    Sketcher.Constraint("Distance", 5, Q("0.0580001 in")),
    Sketcher.Constraint("DistanceY", -1, 1, 0, 2, Q("0.985 in")),
    Sketcher.Constraint("DistanceX", 3, 2, -1, 1, Q("0.0960002 in")),
    Sketcher.Constraint("DistanceY", 1, 1, 1, 2, Q("41.198 mm")),
    Sketcher.Constraint("DistanceY", 4, 2, 4, 1, Q("10.795022 mm")),
])
sketch13.setExpression("Constraints[15]", "Params.sketch13_width")
sketch13.setExpression("Constraints[16]", "Params.sketch13_length")
revolution3 = doc.addObject("PartDesign::Revolution", "Revolution002")
body.addObject(revolution3)
revolution3.Profile = sketch13
revolution3.ReferenceAxis = (sketch13, ["V_Axis"])
revolution3.setExpression("Angle", "Params.revolution3_angle")

sketch14 = doc.addObject("Sketcher::SketchObject", "Sketch013")
body.addObject(sketch14)
sketch14.AttachmentSupport = (doc.YZ_Plane, [""])
sketch14.MapMode = "FlatFace"
sketch14.addGeometry([
    Part.LineSegment(V(-3.175006, 49.668867, 0), V(-2.501905, 50.341968, 0)),
    Part.LineSegment(V(-2.501905, 50.341968, 0), V(-2.501905, 66.217, 0)),
    Part.LineSegment(V(-2.501905, 66.217, 0), V(-3.175006, 66.217, 0)),
    Part.LineSegment(V(-3.175006, 66.217, 0), V(-3.175006, 49.668867, 0)),
    Part.LineSegment(V(2.501905, 50.341968, 0), V(3.175006, 49.668867, 0)),
    Part.LineSegment(V(3.175006, 49.668867, 0), V(3.175006, 66.217, 0)),
    Part.LineSegment(V(3.175006, 66.217, 0), V(2.501905, 66.217, 0)),
    Part.LineSegment(V(2.501905, 66.217, 0), V(2.501905, 50.341968, 0)),
], False)
sketch14.addConstraint([
    Sketcher.Constraint("Coincident", 0, 2, 1, 1),
    Sketcher.Constraint("Coincident", 1, 2, 2, 1),
    Sketcher.Constraint("Coincident", 2, 2, 3, 1),
    Sketcher.Constraint("Coincident", 3, 2, 0, 1),
    Sketcher.Constraint("Coincident", 4, 2, 5, 1),
    Sketcher.Constraint("Coincident", 5, 2, 6, 1),
    Sketcher.Constraint("Coincident", 6, 2, 7, 1),
    Sketcher.Constraint("Coincident", 7, 2, 4, 1),
    Sketcher.Constraint("Vertical", 1),
    Sketcher.Constraint("Horizontal", 2),
    Sketcher.Constraint("Vertical", 3),
    Sketcher.Constraint("Vertical", 5),
    Sketcher.Constraint("Horizontal", 6),
    Sketcher.Constraint("Vertical", 7),
    Sketcher.Constraint("Symmetric", 3, 2, 4, 2, -2),
    Sketcher.Constraint("Symmetric", 1, 2, 6, 2, -2),
    Sketcher.Constraint("Perpendicular", 0, 4),
    Sketcher.Constraint("Horizontal", 0, 2, 7, 2),
    Sketcher.Constraint("DistanceX", 2, 2, 2, 1, Q("0.0265001 in")),
    Sketcher.Constraint("DistanceX", 0, 2, -1, 1, Q("0.0985002 in")),
    Sketcher.Constraint("DistanceY", 1, 1, 1, 2, Q("15.875032 mm")),
    Sketcher.Constraint("DistanceY", -1, 1, 1, 2, Q("66.217 mm")),
])
pocket6 = doc.addObject("PartDesign::Pocket", "Pocket005")
body.addObject(pocket6)
pocket6.Profile = sketch14
pocket6.setExpression("Length", "Params.pocket6_length")
pocket6.Midplane = True

sketch15 = doc.addObject("Sketcher::SketchObject", "Sketch014")
body.addObject(sketch15)
sketch15.AttachmentSupport = (doc.YZ_Plane, [""])
sketch15.MapMode = "FlatFace"
sketch15.addGeometry([
    Part.LineSegment(V(-11.645923, 25.019, 0), V(-14.351029, 25.019, 0)),
    Part.LineSegment(V(-14.351029, 25.019, 0), V(-14.351029, 23.698197, 0)),
    Part.LineSegment(V(-14.351029, 23.698197, 0), V(-11.645923, 23.698197, 0)),
    Part.LineSegment(V(-11.645923, 23.698197, 0), V(-11.645923, 25.019, 0)),
], False)
sketch15.addConstraint([
    Sketcher.Constraint("Coincident", 0, 2, 1, 1),
    Sketcher.Constraint("Coincident", 1, 2, 2, 1),
    Sketcher.Constraint("Coincident", 2, 2, 3, 1),
    Sketcher.Constraint("Coincident", 3, 2, 0, 1),
    Sketcher.Constraint("Horizontal", 0),
    Sketcher.Constraint("Vertical", 1),
    Sketcher.Constraint("Horizontal", 2),
    Sketcher.Constraint("Vertical", 3),
    Sketcher.Constraint("DistanceY", 1, 2, 1, 1, Q("0.0520001 in")),
    Sketcher.Constraint("DistanceY", -1, 1, 0, 2, Q("0.985 in")),
    Sketcher.Constraint("DistanceX", 0, 2, 0, 1, Q("2.705105 mm")),
    Sketcher.Constraint("DistanceX", 0, 2, -1, 1, Q("14.351029 mm")),
])
sketch15.setExpression("Constraints[8]", "Params.sketch15_height")
groove4 = doc.addObject("PartDesign::Groove", "Groove003")
body.addObject(groove4)
groove4.Profile = sketch15
groove4.ReferenceAxis = (sketch15, ["V_Axis"])
groove4.setExpression("Angle", "Params.groove4_angle")

sketch16 = doc.addObject("Sketcher::SketchObject", "Sketch015")
body.addObject(sketch16)
sketch16.AttachmentSupport = (doc.XY_Plane, [""])
sketch16.MapMode = "FlatFace"
sketch16.AttachmentOffset = App.Placement(V(0, 0, 0.985 * 25.4), App.Rotation())
sketch16.addGeometry([
    Part.Circle(V(19.431039, 0, 0), V(0, 0, 1), 1.270003),
    Part.Circle(V(18.768942, 5.029123, 0), V(0, 0, 1), 1.270003),
    Part.Circle(V(-5.029123, 18.768942, 0), V(0, 0, 1), 1.270003),
    Part.Circle(V(-9.715519, 16.827773, 0), V(0, 0, 1), 1.270003),
    Part.Circle(V(-9.715519, -16.827773, 0), V(0, 0, 1), 1.270003),
    Part.Circle(V(-5.029123, -18.768942, 0), V(0, 0, 1), 1.270003),
], False)
sketch16.addConstraint([
    Sketcher.Constraint("Equal", 0, 1),
    Sketcher.Constraint("Equal", 1, 2),
    Sketcher.Constraint("Equal", 2, 3),
    Sketcher.Constraint("Equal", 3, 4),
    Sketcher.Constraint("Equal", 4, 5),
    Sketcher.Constraint("Symmetric", 3, 3, 4, 3, -1),
    Sketcher.Constraint("Symmetric", 2, 3, 5, 3, -1),
    Sketcher.Constraint("PointOnObject", 0, 3, -1),
    Sketcher.Constraint("Diameter", 0, Q("0.1000002 in")),
    Sketcher.Constraint("DistanceX", -1, 1, 0, 3, Q("19.431039 mm")),
    Sketcher.Constraint("DistanceX", 3, 3, -1, 1, Q("9.715519 mm")),
    Sketcher.Constraint("DistanceY", 1, 3, 2, 3, Q("13.739819 mm")),
    Sketcher.Constraint("DistanceX", 2, 3, 0, 3, Q("24.460162 mm")),
    Sketcher.Constraint("DistanceY", 3, 3, 2, 3, Q("1.941169 mm")),
    Sketcher.Constraint("DistanceX", 3, 3, 1, 3, Q("28.484462 mm")),
    Sketcher.Constraint("DistanceY", -1, 1, 1, 3, Q("5.029123 mm")),
])
sketch16.setExpression("Constraints[8]", "Params.sketch16_diameter")
pocket7 = doc.addObject("PartDesign::Pocket", "Pocket006")
body.addObject(pocket7)
pocket7.Profile = sketch16
pocket7.setExpression("Length", "Params.pocket7_length")
body2 = doc.addObject("PartDesign::Body", "Body001")

sketch17 = doc.addObject("Sketcher::SketchObject", "Sketch016")
body2.addObject(sketch17)
sketch17.AttachmentSupport = (doc.getObject("XZ_Plane001"), [""])
sketch17.MapMode = "FlatFace"
sketch17.AttachmentOffset = App.Placement(V(0, 0, -18.11), App.Rotation())
sketch17.addGeometry(Part.Circle(V(-36.6268, 24.4983, 0), V(0, 0, 1), 0.9271), False)
sketch17.addGeometry(Part.LineSegment(V(-41.402, 24.4983, 0), V(-41.402, 14.4983, 0)), True)
sketch17.addConstraint([
    Sketcher.Constraint("Vertical", 1),
    Sketcher.Constraint("Horizontal", 0, 3, 1, 1),
    Sketcher.Constraint("Diameter", 0, Q("0.073 in")),
    Sketcher.Constraint("DistanceX", 1, 1, -1, 1, Q("1.63 in")),
    Sketcher.Constraint("DistanceX", 0, 3, -1, 1, Q("1.442 in")),
    Sketcher.Constraint("DistanceY", 1, 2, 1, 1, Q("10 mm")),
    Sketcher.Constraint("DistanceY", -1, 1, 0, 3, Q("0.9645 in")),
])
sketch17.setExpression("Constraints[2]", "Params.sketch17_diameter")
revolution4 = doc.addObject("PartDesign::Revolution", "Revolution003")
body2.addObject(revolution4)
revolution4.Profile = sketch17
revolution4.ReferenceAxis = (sketch17, ["Axis0"])
revolution4.setExpression("Angle", "Params.revolution4_angle")
body3 = doc.addObject("PartDesign::Body", "Body002")
doc.recompute()

mirroring = doc.addObject("Part::Mirroring", "Mirroring")
mirroring.Source = body2
mirroring.Base = V(0, 0, 0)
mirroring.Normal = V(0, 1, 0)
body3.BaseFeature = mirroring
doc.recompute()
mirroring.Visibility = False

doc.recompute()
